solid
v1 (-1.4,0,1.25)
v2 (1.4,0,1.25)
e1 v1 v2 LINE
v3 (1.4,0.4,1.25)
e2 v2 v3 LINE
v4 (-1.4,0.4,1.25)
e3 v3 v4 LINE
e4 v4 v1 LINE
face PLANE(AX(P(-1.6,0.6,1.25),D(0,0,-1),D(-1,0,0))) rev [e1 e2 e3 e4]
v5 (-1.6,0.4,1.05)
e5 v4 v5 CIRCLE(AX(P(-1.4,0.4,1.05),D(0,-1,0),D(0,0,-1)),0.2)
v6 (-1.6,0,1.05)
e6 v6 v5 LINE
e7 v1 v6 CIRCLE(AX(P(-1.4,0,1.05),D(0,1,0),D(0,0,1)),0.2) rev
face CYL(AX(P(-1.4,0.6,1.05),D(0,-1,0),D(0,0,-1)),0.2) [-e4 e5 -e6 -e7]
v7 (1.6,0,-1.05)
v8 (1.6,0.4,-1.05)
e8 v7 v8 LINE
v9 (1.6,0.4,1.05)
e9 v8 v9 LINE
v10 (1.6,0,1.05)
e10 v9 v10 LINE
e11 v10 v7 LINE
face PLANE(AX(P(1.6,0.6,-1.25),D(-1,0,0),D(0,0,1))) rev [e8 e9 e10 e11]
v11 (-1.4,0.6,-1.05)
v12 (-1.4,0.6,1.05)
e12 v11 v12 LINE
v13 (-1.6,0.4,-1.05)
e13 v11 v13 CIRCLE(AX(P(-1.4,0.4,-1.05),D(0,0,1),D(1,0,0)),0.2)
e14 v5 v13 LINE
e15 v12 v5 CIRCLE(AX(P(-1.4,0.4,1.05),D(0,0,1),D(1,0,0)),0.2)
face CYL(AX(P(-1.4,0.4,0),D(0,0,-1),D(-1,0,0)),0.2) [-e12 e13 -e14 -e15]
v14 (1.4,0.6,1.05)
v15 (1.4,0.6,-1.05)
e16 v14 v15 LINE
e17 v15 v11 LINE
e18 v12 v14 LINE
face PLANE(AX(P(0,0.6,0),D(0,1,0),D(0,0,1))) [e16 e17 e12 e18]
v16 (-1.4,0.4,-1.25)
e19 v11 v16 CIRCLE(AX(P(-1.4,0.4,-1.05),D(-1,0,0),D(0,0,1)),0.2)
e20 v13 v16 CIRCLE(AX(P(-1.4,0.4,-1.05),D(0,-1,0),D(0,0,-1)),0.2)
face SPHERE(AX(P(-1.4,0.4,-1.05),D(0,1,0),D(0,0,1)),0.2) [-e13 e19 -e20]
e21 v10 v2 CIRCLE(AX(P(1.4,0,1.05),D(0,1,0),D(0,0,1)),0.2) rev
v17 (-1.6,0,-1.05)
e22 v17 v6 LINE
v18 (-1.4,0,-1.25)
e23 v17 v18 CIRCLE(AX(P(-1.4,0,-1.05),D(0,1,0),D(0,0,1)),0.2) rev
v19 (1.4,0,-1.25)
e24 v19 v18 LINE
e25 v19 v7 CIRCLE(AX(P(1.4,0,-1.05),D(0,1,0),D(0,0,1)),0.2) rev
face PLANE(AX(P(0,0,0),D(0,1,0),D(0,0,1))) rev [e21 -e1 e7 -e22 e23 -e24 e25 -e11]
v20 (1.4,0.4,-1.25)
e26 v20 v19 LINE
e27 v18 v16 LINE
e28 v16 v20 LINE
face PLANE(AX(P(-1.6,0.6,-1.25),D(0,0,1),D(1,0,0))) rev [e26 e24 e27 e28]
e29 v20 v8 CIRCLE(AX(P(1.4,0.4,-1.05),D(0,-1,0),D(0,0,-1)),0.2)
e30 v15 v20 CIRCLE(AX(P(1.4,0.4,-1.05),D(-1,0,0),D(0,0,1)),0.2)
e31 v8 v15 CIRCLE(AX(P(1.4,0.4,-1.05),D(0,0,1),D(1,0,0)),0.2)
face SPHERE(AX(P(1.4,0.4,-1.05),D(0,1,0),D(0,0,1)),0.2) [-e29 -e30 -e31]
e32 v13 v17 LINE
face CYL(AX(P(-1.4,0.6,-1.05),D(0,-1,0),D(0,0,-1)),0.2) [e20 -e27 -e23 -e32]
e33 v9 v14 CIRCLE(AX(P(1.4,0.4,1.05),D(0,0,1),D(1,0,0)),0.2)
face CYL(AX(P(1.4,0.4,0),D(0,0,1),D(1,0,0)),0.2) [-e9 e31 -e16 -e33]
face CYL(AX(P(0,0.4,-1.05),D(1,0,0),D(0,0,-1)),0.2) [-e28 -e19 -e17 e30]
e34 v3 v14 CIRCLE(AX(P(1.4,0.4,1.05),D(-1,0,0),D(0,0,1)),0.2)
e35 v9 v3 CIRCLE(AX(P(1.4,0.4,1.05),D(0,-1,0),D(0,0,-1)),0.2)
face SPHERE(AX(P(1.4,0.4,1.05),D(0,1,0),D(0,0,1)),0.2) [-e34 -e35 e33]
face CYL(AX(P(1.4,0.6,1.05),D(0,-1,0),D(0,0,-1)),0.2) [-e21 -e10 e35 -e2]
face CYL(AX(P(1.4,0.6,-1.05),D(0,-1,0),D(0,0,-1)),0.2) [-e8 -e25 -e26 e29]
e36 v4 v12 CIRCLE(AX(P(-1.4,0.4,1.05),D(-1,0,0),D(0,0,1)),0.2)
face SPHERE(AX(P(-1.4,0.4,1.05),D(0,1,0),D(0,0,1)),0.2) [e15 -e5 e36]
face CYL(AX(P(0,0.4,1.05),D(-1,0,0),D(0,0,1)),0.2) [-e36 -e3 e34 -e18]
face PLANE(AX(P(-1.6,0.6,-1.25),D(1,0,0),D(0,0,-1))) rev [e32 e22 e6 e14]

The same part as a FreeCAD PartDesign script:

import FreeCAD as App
import Part
import Sketcher
from FreeCAD import Vector
Q = App.Units.Quantity


def edges_at(feature, points):
    """Names of the edges that pass closest to the given points."""
    edges = feature.Shape.Edges
    near = lambda p: min(range(len(edges)), key=lambda i: edges[i].distToShape(Part.Vertex(*p))[0])
    return sorted({f"Edge{near(p) + 1}" for p in points})

doc = App.newDocument("Part")
body = doc.addObject("PartDesign::Body", "Body")

sketch1 = doc.addObject("Sketcher::SketchObject", "Sketch")
body.addObject(sketch1)
sketch1.AttachmentSupport = (doc.XZ_Plane, [""])
sketch1.MapMode = "FlatFace"
sketch1.addGeometry(Part.LineSegment(Vector(-1.6, -1.2, 0), Vector(-1.6, 1.2, 0)), False)
sketch1.addGeometry(Part.LineSegment(Vector(-1.6, 1.2, 0), Vector(1.6, 1.2, 0)), False)
sketch1.addGeometry(Part.LineSegment(Vector(1.6, 1.2, 0), Vector(1.6, -1.2, 0)), False)
sketch1.addGeometry(Part.LineSegment(Vector(1.6, -1.2, 0), Vector(-1.6, -1.2, 0)), False)
sketch1.addConstraint(Sketcher.Constraint("Coincident", 0, 2, 1, 1))
sketch1.addConstraint(Sketcher.Constraint("Coincident", 1, 2, 2, 1))
sketch1.addConstraint(Sketcher.Constraint("Coincident", 2, 2, 3, 1))
sketch1.addConstraint(Sketcher.Constraint("Coincident", 3, 2, 0, 1))
sketch1.addConstraint(Sketcher.Constraint("Vertical", 0))
sketch1.addConstraint(Sketcher.Constraint("Horizontal", 1))
sketch1.addConstraint(Sketcher.Constraint("Vertical", 2))
sketch1.addConstraint(Sketcher.Constraint("Horizontal", 3))
sketch1.addConstraint(Sketcher.Constraint("Symmetric", 0, 2, 2, 2, -1, 1))
sketch1.addConstraint(Sketcher.Constraint("DistanceX", 1, 1, 1, 2, Q("3.2 mm")))
sketch1.addConstraint(Sketcher.Constraint("DistanceY", 0, 1, 0, 2, Q("2.5 mm")))
pad1 = doc.addObject("PartDesign::Pad", "Pad")
body.addObject(pad1)
pad1.Profile = sketch1
pad1.Length = 0.6
pad1.Reversed = True
doc.recompute()

fillet = doc.addObject("PartDesign::Fillet", "Fillet")
body.addObject(fillet)
fillet.Base = (pad1, edges_at(pad1, [
    (1.6, 0.3, 1.25),
    (-1.6, 0.3, 1.25),
    (-1.6, 0.3, -1.25),
    (1.6, 0.3, -1.25),
]))
fillet.Radius = 0.2
doc.recompute()

fillet2 = doc.addObject("PartDesign::Fillet", "Fillet001")
body.addObject(fillet2)
fillet2.Base = (fillet, edges_at(fillet, [
    (1.6, 0.6, 0),
    (0, 0.6, 1.25),
    (0, 0.6, -1.25),
    (-1.6, 0.6, 0),
    (-1.541, 0.6, -1.191),
    (-1.541, 0.6, 1.191),
    (1.541, 0.6, -1.191),
    (1.541, 0.6, 1.191),
]))
fillet2.Radius = 0.2

doc.recompute()
